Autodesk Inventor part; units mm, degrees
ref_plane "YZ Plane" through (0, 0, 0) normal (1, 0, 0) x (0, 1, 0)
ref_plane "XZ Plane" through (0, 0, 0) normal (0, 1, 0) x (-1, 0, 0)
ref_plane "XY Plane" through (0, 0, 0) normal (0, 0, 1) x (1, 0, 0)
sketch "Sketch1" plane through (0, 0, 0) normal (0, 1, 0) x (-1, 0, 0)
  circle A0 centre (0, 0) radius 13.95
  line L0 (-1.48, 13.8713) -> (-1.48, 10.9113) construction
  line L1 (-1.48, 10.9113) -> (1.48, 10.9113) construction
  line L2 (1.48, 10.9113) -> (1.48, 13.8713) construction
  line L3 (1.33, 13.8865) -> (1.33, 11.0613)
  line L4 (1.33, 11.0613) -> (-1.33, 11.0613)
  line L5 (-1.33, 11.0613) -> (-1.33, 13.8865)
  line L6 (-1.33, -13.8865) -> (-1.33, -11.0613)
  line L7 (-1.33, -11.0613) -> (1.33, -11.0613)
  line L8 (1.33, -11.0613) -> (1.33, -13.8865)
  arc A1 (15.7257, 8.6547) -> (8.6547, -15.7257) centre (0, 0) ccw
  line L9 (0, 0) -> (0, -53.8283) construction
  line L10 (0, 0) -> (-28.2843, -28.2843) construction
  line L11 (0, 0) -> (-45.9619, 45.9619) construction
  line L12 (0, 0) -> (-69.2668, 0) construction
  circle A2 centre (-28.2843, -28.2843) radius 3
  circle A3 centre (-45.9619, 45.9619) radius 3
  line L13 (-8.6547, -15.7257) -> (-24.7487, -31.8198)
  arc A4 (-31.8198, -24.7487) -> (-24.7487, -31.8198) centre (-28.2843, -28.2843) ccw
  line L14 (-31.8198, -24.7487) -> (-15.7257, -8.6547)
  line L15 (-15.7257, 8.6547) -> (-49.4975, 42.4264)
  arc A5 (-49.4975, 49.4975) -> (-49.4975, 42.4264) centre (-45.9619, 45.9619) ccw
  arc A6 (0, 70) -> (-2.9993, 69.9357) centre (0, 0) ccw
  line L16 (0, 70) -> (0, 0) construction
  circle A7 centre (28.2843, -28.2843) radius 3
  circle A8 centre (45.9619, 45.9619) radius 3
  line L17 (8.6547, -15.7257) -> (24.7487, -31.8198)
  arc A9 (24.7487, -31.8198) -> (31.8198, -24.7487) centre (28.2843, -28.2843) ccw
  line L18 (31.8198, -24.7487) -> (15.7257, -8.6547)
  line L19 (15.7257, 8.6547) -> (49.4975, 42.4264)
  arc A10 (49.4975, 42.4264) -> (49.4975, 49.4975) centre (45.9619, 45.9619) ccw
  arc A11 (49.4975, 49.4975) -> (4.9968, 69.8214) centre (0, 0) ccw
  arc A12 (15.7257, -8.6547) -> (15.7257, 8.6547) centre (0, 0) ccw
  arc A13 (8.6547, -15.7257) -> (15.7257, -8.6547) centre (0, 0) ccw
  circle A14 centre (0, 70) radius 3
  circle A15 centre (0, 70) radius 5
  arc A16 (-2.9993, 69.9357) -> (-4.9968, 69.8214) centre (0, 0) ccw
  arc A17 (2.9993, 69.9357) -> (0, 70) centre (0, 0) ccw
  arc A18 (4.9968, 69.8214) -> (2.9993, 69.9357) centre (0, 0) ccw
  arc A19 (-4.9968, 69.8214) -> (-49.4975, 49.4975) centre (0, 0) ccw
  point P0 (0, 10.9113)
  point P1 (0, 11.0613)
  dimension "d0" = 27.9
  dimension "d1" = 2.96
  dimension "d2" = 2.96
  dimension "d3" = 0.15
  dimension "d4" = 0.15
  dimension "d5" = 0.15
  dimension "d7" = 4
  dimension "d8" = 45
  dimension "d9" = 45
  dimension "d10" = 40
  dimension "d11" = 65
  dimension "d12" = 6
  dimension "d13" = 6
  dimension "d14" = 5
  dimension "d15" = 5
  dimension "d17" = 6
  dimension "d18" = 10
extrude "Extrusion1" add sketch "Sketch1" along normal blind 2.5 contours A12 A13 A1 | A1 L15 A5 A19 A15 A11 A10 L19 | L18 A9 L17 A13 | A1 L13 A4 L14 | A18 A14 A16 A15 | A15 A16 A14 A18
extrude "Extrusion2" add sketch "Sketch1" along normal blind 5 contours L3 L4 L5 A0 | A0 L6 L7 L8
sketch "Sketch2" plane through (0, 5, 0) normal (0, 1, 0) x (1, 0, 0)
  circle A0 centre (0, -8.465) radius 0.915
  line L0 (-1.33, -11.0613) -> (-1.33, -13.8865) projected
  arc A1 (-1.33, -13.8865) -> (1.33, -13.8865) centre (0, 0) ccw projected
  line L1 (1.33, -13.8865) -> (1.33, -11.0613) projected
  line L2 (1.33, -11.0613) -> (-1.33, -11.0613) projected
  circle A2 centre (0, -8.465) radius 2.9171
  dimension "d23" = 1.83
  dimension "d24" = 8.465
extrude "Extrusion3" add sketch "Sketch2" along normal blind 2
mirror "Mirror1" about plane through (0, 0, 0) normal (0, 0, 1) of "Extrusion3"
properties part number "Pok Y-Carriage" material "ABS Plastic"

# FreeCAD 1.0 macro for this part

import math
import FreeCAD as App
import Part
import Sketcher

doc = App.newDocument("Part")
body = doc.addObject("PartDesign::Body", "Body")

sketch1 = doc.addObject("Sketcher::SketchObject", "Sketch")
body.addObject(sketch1)
sketch1.AttachmentSupport = (doc.XZ_Plane, [""])
sketch1.MapMode = "FlatFace"
sketch1.addGeometry([
    Part.ArcOfCircle(Part.Circle(App.Vector(0, 0, 0), App.Vector(0, 0, 1), 17.9), math.radians(151), math.radians(209)),
    Part.LineSegment(App.Vector(-15.7, 8.7, 0), App.Vector(-49.5, 42.4, 0)),
    Part.ArcOfCircle(Part.Circle(App.Vector(-46, 46, 0), App.Vector(0, 0, 1), 5), math.radians(135), math.radians(225)),
    Part.ArcOfCircle(Part.Circle(App.Vector(0, 0, 0), App.Vector(0, 0, 1), 70), math.radians(94), math.radians(135)),
    Part.ArcOfCircle(Part.Circle(App.Vector(0, 70, 0), App.Vector(0, 0, 1), 5), math.radians(-2), math.radians(182)),
    Part.ArcOfCircle(Part.Circle(App.Vector(0, 0, 0), App.Vector(0, 0, 1), 70), math.radians(45), math.radians(86)),
    Part.ArcOfCircle(Part.Circle(App.Vector(46, 46, 0), App.Vector(0, 0, 1), 5), math.radians(-45), math.radians(45)),
    Part.LineSegment(App.Vector(49.5, 42.4, 0), App.Vector(15.7, 8.7, 0)),
    Part.ArcOfCircle(Part.Circle(App.Vector(0, 0, 0), App.Vector(0, 0, 1), 17.9), math.radians(-29), math.radians(29)),
    Part.LineSegment(App.Vector(15.7, -8.7, 0), App.Vector(31.8, -24.7, 0)),
    Part.ArcOfCircle(Part.Circle(App.Vector(28.3, -28.3, 0), App.Vector(0, 0, 1), 5), math.radians(-135), math.radians(45)),
    Part.LineSegment(App.Vector(24.7, -31.8, 0), App.Vector(8.7, -15.7, 0)),
    Part.ArcOfCircle(Part.Circle(App.Vector(0, 0, 0), App.Vector(0, 0, 1), 17.9), math.radians(-119), math.radians(-61)),
    Part.LineSegment(App.Vector(-8.7, -15.7, 0), App.Vector(-24.7, -31.8, 0)),
    Part.ArcOfCircle(Part.Circle(App.Vector(-28.3, -28.3, 0), App.Vector(0, 0, 1), 5), math.radians(135), math.radians(315)),
    Part.LineSegment(App.Vector(-31.8, -24.7, 0), App.Vector(-15.7, -8.7, 0)),
    Part.Circle(App.Vector(0, 0, 0), App.Vector(0, 0, 1), 13.9),
    Part.Circle(App.Vector(-28.3, -28.3, 0), App.Vector(0, 0, 1), 3),
    Part.Circle(App.Vector(28.3, -28.3, 0), App.Vector(0, 0, 1), 3),
    Part.Circle(App.Vector(-46, 46, 0), App.Vector(0, 0, 1), 3),
    Part.Circle(App.Vector(46, 46, 0), App.Vector(0, 0, 1), 3),
    Part.Circle(App.Vector(0, 70, 0), App.Vector(0, 0, 1), 3),
], False)
sketch1.addConstraint([
    Sketcher.Constraint("Coincident", 0, 1, 1, 1),
    Sketcher.Constraint("Tangent", 1, 2, 2, 2),
    Sketcher.Constraint("Tangent", 2, 1, 3, 2),
    Sketcher.Constraint("Coincident", 3, 1, 4, 2),
    Sketcher.Constraint("Coincident", 4, 1, 5, 2),
    Sketcher.Constraint("Tangent", 5, 1, 6, 2),
    Sketcher.Constraint("Tangent", 6, 1, 7, 1),
    Sketcher.Constraint("Coincident", 7, 2, 8, 2),
    Sketcher.Constraint("Coincident", 8, 1, 9, 1),
    Sketcher.Constraint("Tangent", 9, 2, 10, 2),
    Sketcher.Constraint("Tangent", 10, 1, 11, 1),
    Sketcher.Constraint("Coincident", 11, 2, 12, 2),
    Sketcher.Constraint("Coincident", 12, 1, 13, 1),
    Sketcher.Constraint("Tangent", 13, 2, 14, 2),
    Sketcher.Constraint("Tangent", 14, 1, 15, 1),
    Sketcher.Constraint("Coincident", 15, 2, 0, 2),
    Sketcher.Constraint("Coincident", 0, 3, -1, 1),
    Sketcher.Constraint("Coincident", 3, 3, -1, 1),
    Sketcher.Constraint("Coincident", 5, 3, -1, 1),
    Sketcher.Constraint("Coincident", 8, 3, -1, 1),
    Sketcher.Constraint("Coincident", 12, 3, -1, 1),
    Sketcher.Constraint("Coincident", 16, 3, -1, 1),
    Sketcher.Constraint("Coincident", 17, 3, 14, 3),
    Sketcher.Constraint("Coincident", 18, 3, 10, 3),
    Sketcher.Constraint("Coincident", 19, 3, 2, 3),
    Sketcher.Constraint("Coincident", 20, 3, 6, 3),
    Sketcher.Constraint("Coincident", 21, 3, 4, 3),
    Sketcher.Constraint("Equal", 2, 4),
    Sketcher.Constraint("Equal", 3, 5),
    Sketcher.Constraint("Equal", 4, 6),
    Sketcher.Constraint("Equal", 0, 8),
    Sketcher.Constraint("Equal", 6, 10),
    Sketcher.Constraint("Equal", 8, 12),
    Sketcher.Constraint("Equal", 10, 14),
    Sketcher.Constraint("Equal", 17, 18),
    Sketcher.Constraint("Equal", 18, 19),
    Sketcher.Constraint("Equal", 19, 20),
    Sketcher.Constraint("Equal", 20, 21),
    Sketcher.Constraint("Symmetric", 10, 3, 14, 3, -2),
    Sketcher.Constraint("Symmetric", 1, 2, 6, 1, -2),
    Sketcher.Constraint("PointOnObject", 4, 3, -2),
    Sketcher.Constraint("Perpendicular", 1, 7),
    Sketcher.Constraint("Perpendicular", 7, 9),
    Sketcher.Constraint("Parallel", 9, 11),
    Sketcher.Constraint("Perpendicular", 11, 13),
    Sketcher.Constraint("Parallel", 13, 15),
    Sketcher.Constraint("Vertical", 1, 2, 2, 1),
    Sketcher.Constraint("Vertical", 7, 2, 8, 1),
    Sketcher.Constraint("Diameter", 17, 6.0),
    Sketcher.Constraint("Radius", 2, 5.0),
    Sketcher.Constraint("Diameter", 16, 27.9),
    Sketcher.Constraint("Radius", 3, 70.0),
    Sketcher.Constraint("Radius", 0, 17.95),
    Sketcher.Constraint("DistanceY", -1, 1, 4, 3, 70.0),
    Sketcher.Constraint("DistanceX", 8, 1, 9, 2, 16.094),
])
pad1 = doc.addObject("PartDesign::Pad", "Pad")
body.addObject(pad1)
pad1.Profile = sketch1
pad1.Length = 2.5
pad1.Reversed = True

sketch2 = doc.addObject("Sketcher::SketchObject", "Sketch001")
body.addObject(sketch2)
sketch2.AttachmentSupport = (doc.XZ_Plane, [""])
sketch2.MapMode = "FlatFace"
sketch2.addGeometry([
    Part.LineSegment(App.Vector(-1.3, 11.1, 0), App.Vector(-1.3, 13.9, 0)),
    Part.ArcOfCircle(Part.Circle(App.Vector(0, 0, 0), App.Vector(0, 0, 1), 13.9), math.radians(84.53), math.radians(95.47)),
    Part.LineSegment(App.Vector(1.3, 13.9, 0), App.Vector(1.3, 11.1, 0)),
    Part.LineSegment(App.Vector(1.3, 11.1, 0), App.Vector(-1.3, 11.1, 0)),
    Part.ArcOfCircle(Part.Circle(App.Vector(0, 0, 0), App.Vector(0, 0, 1), 13.9), math.radians(-95.47), math.radians(-84.53)),
    Part.LineSegment(App.Vector(-1.3, -13.9, 0), App.Vector(-1.3, -11.1, 0)),
    Part.LineSegment(App.Vector(-1.3, -11.1, 0), App.Vector(1.3, -11.1, 0)),
    Part.LineSegment(App.Vector(1.3, -11.1, 0), App.Vector(1.3, -13.9, 0)),
], False)
sketch2.addConstraint([
    Sketcher.Constraint("Coincident", 0, 2, 1, 2),
    Sketcher.Constraint("Coincident", 1, 1, 2, 1),
    Sketcher.Constraint("Coincident", 2, 2, 3, 1),
    Sketcher.Constraint("Coincident", 3, 2, 0, 1),
    Sketcher.Constraint("Coincident", 4, 1, 5, 1),
    Sketcher.Constraint("Coincident", 5, 2, 6, 1),
    Sketcher.Constraint("Coincident", 6, 2, 7, 1),
    Sketcher.Constraint("Coincident", 7, 2, 4, 2),
    Sketcher.Constraint("Vertical", 0),
    Sketcher.Constraint("Vertical", 2),
    Sketcher.Constraint("Horizontal", 3),
    Sketcher.Constraint("Vertical", 5),
    Sketcher.Constraint("Horizontal", 6),
    Sketcher.Constraint("Vertical", 7),
    Sketcher.Constraint("Coincident", 1, 3, -1, 1),
    Sketcher.Constraint("Coincident", 4, 3, -1, 1),
    Sketcher.Constraint("Equal", 1, 4),
    Sketcher.Constraint("Symmetric", 2, 2, 5, 2, -1, 1),
    Sketcher.Constraint("Horizontal", 0, 2, 1, 1),
    Sketcher.Constraint("Horizontal", 4, 1, 7, 2),
    Sketcher.Constraint("Radius", 1, 13.95),
    Sketcher.Constraint("DistanceX", 3, 2, 3, 1, 2.66),
    Sketcher.Constraint("DistanceY", 0, 1, 0, 2, 2.8252),
])
pad2 = doc.addObject("PartDesign::Pad", "Pad001")
body.addObject(pad2)
pad2.Profile = sketch2
pad2.Length = 5
pad2.Reversed = True

sketch3 = doc.addObject("Sketcher::SketchObject", "Sketch002")
body.addObject(sketch3)
sketch3.AttachmentSupport = (doc.XZ_Plane, [""])
sketch3.MapMode = "FlatFace"
sketch3.AttachmentOffset = App.Placement(App.Vector(0, 0, -5), App.Rotation())
sketch3.addGeometry([
    Part.LineSegment(App.Vector(1.3, 13.9, 0), App.Vector(1.3, 11.1, 0)),
    Part.ArcOfCircle(Part.Circle(App.Vector(0, 8.5, 0), App.Vector(0, 0, 1), 2.9), math.radians(117), math.radians(423)),
    Part.LineSegment(App.Vector(-1.3, 11.1, 0), App.Vector(-1.3, 13.9, 0)),
    Part.ArcOfCircle(Part.Circle(App.Vector(0, 0, 0), App.Vector(0, 0, 1), 14), math.radians(84.53), math.radians(95.47)),
    Part.Circle(App.Vector(0, 8.5, 0), App.Vector(0, 0, 1), 0.9),
], False)
sketch3.addConstraint([
    Sketcher.Constraint("Coincident", 0, 2, 1, 2),
    Sketcher.Constraint("Coincident", 1, 1, 2, 1),
    Sketcher.Constraint("Coincident", 2, 2, 3, 2),
    Sketcher.Constraint("Coincident", 3, 1, 0, 1),
    Sketcher.Constraint("Vertical", 0),
    Sketcher.Constraint("Vertical", 2),
    Sketcher.Constraint("Coincident", 3, 3, -1, 1),
    Sketcher.Constraint("Coincident", 4, 3, 1, 3),
    Sketcher.Constraint("Symmetric", 0, 2, 1, 1, -2),
    Sketcher.Constraint("Diameter", 4, 1.83),
    Sketcher.Constraint("Radius", 3, 13.95),
    Sketcher.Constraint("DistanceY", -1, 1, 1, 3, 8.465),
    Sketcher.Constraint("Radius", 1, 2.917),
    Sketcher.Constraint("DistanceX", -1, 1, 0, 2, 1.33),
])
pad3 = doc.addObject("PartDesign::Pad", "Pad002")
body.addObject(pad3)
pad3.Profile = sketch3
pad3.Length = 2
pad3.Reversed = True
doc.recompute()

mirrored = doc.addObject("PartDesign::Mirrored", "Mirrored")
body.addObject(mirrored)
mirrored.Originals = [pad3]
mirrored.MirrorPlane = (doc.XY_Plane, [""])
body.Tip = mirrored

doc.recompute()
